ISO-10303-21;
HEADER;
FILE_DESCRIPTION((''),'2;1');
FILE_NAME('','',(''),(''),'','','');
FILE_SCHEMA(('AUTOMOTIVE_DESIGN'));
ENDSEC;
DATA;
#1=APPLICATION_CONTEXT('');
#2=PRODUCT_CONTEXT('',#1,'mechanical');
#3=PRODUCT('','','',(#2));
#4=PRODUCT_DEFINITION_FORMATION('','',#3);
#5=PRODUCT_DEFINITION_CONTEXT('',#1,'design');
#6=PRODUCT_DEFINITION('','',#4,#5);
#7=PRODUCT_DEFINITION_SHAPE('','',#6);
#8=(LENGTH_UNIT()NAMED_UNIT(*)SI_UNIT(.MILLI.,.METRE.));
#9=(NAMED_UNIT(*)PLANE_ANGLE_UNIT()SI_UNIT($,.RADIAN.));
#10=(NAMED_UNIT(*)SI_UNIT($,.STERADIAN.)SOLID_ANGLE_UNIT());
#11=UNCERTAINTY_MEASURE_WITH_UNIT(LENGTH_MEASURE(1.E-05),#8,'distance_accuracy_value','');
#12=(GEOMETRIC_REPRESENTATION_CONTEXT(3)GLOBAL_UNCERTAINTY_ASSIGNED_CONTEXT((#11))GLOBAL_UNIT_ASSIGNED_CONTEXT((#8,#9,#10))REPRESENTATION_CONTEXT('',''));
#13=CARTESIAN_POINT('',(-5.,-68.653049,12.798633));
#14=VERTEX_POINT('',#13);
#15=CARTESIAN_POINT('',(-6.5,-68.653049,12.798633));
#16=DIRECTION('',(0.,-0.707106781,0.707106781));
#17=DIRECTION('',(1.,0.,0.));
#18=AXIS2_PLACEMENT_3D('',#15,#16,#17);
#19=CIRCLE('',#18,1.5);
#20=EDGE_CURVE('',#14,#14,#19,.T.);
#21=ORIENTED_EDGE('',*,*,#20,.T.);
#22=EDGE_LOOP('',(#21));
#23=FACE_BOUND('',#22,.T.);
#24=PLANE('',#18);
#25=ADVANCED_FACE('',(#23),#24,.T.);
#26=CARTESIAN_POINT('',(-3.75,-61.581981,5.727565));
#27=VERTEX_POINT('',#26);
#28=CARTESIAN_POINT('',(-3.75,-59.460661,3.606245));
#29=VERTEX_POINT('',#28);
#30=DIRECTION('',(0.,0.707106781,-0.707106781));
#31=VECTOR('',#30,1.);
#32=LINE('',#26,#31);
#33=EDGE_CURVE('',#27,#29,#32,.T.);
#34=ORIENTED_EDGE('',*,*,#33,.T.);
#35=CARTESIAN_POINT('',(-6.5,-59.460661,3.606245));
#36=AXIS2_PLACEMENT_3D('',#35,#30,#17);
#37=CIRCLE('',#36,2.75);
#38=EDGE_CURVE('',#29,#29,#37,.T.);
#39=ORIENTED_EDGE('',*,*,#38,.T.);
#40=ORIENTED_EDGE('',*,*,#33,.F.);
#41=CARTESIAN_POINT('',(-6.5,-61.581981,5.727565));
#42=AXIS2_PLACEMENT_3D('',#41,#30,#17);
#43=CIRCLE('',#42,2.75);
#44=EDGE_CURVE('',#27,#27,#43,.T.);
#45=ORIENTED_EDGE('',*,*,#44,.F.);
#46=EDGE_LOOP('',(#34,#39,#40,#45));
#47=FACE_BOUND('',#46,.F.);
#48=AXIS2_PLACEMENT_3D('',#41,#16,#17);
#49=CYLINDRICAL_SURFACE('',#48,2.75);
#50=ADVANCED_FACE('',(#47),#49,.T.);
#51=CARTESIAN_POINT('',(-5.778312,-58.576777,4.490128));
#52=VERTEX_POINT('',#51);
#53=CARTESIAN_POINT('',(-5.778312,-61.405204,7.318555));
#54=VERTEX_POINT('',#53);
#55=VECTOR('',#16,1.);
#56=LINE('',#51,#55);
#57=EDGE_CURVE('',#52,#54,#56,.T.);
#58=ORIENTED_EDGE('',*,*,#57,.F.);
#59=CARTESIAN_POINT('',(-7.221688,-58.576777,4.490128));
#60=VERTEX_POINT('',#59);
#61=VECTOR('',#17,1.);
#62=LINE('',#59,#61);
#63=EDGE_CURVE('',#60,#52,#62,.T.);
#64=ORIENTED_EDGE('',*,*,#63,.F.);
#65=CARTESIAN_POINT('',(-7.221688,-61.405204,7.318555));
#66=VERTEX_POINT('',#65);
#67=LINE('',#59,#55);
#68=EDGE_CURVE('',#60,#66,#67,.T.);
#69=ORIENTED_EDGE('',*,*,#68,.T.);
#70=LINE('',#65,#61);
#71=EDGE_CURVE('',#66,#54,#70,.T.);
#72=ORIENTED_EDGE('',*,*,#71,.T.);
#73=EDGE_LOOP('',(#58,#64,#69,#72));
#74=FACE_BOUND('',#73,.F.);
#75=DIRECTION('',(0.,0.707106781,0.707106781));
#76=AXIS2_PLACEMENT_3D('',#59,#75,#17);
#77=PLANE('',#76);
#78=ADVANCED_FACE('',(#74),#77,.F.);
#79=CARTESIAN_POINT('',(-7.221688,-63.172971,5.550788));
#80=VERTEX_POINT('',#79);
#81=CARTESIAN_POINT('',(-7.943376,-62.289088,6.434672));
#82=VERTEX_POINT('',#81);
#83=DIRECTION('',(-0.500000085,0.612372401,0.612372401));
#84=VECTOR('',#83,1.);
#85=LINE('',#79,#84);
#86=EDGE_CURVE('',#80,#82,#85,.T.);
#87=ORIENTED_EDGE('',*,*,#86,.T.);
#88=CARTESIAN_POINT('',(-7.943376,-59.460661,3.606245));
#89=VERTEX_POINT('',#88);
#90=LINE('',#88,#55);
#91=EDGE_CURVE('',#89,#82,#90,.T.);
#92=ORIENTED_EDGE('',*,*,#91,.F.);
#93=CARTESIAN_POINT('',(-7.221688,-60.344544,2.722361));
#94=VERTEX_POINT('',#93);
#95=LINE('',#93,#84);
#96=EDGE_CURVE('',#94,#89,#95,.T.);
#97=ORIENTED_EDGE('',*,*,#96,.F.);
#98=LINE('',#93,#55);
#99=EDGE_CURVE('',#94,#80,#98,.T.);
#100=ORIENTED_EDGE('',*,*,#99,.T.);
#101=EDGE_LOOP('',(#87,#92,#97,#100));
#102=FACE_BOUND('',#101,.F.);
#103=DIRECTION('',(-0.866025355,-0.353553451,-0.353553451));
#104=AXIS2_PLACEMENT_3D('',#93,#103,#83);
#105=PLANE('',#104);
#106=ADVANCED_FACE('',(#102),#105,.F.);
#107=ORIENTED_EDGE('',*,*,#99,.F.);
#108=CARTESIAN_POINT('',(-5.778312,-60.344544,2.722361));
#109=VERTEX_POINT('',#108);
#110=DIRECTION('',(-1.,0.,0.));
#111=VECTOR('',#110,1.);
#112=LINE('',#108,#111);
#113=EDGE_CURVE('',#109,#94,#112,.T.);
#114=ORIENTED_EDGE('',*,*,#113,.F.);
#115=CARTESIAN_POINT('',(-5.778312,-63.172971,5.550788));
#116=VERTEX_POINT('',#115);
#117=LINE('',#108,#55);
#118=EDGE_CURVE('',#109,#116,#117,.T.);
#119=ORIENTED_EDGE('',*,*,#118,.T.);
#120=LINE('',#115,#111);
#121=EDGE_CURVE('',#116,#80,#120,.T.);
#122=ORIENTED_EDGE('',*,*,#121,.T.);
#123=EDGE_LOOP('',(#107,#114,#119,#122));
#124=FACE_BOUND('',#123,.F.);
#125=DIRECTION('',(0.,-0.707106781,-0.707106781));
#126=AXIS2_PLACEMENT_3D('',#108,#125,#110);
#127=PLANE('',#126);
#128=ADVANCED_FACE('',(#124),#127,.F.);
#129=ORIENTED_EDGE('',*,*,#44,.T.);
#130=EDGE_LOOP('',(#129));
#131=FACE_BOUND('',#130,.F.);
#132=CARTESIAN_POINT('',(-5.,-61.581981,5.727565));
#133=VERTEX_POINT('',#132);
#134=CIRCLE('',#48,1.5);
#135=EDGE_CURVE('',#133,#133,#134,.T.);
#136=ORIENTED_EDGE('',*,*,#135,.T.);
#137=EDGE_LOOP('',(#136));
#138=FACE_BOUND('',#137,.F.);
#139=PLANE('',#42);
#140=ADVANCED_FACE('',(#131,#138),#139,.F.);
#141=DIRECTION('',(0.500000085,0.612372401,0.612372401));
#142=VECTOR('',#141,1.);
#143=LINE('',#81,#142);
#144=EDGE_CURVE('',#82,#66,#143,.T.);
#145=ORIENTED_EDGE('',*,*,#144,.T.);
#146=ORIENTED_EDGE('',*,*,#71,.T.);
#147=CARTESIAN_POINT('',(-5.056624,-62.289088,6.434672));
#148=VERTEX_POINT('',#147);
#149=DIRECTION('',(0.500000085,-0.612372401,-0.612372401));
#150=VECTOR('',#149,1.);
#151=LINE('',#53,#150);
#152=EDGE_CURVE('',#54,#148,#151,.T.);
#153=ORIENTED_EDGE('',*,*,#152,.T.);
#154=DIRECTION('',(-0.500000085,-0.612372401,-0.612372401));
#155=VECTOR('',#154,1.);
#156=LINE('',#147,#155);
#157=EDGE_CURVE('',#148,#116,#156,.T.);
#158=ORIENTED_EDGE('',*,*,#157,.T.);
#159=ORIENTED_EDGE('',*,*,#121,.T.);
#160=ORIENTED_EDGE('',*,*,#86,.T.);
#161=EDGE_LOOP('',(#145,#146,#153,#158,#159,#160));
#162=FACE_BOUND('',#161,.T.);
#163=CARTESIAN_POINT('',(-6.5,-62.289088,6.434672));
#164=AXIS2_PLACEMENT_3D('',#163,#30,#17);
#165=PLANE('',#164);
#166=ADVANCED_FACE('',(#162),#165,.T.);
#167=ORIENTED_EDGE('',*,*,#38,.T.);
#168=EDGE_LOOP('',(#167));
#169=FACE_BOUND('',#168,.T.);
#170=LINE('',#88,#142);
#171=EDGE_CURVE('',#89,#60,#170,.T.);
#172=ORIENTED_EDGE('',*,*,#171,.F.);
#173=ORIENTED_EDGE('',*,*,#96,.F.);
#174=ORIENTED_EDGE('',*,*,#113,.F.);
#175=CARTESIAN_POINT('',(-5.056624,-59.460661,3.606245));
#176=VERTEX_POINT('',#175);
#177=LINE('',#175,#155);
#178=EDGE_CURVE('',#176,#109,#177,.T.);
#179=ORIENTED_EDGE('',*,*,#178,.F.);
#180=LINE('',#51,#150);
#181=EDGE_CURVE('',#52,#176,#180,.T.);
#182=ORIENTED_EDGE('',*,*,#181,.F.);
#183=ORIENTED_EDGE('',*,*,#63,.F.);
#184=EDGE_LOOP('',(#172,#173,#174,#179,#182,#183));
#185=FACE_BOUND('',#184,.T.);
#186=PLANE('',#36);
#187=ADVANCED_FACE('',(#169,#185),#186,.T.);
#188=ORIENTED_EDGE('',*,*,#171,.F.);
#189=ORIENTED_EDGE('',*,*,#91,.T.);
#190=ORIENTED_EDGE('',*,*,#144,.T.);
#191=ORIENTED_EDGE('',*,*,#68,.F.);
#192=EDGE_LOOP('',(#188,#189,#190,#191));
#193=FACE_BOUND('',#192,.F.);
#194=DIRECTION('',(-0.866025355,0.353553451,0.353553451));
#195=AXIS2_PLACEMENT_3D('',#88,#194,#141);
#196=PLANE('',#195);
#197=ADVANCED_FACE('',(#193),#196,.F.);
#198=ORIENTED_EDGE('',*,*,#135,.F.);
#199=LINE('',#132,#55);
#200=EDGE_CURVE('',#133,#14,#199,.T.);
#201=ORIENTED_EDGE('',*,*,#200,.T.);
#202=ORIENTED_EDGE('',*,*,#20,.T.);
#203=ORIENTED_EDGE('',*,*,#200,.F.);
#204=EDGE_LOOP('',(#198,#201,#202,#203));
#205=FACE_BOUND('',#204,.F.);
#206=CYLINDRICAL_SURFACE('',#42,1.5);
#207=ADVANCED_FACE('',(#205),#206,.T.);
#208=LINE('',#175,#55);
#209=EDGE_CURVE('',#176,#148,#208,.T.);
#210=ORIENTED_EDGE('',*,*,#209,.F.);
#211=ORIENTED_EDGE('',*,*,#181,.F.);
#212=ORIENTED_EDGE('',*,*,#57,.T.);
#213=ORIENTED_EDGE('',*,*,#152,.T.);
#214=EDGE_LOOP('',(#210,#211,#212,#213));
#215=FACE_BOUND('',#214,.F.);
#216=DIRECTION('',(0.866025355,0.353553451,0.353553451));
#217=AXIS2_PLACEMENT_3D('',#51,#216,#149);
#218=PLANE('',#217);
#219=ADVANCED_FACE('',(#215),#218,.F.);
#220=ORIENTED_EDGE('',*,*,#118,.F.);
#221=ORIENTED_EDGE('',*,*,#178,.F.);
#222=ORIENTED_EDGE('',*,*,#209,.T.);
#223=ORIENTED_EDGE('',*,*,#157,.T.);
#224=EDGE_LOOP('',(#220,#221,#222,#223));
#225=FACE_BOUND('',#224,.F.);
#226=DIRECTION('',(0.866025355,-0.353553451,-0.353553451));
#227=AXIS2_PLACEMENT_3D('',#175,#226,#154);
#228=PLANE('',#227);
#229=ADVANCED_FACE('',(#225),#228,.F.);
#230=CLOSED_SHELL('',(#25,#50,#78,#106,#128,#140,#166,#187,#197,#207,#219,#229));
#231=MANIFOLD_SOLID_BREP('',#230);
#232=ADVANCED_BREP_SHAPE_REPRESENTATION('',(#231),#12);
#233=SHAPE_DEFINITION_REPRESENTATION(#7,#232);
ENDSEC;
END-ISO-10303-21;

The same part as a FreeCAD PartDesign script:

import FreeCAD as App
import Part
import Sketcher
Q = App.Units.Quantity


def add_polygon(sketch, points):
    """Adds a closed chain of lines whose ends are joined by coincident constraints."""
    first, n = sketch.GeometryCount, len(points)
    for a, b in zip(points, points[1:] + points[:1]):
        sketch.addGeometry(Part.LineSegment(App.Vector(*a, 0), App.Vector(*b, 0)), False)
    for i in range(n):
        sketch.addConstraint(Sketcher.Constraint("Coincident", first + i, 2, first + (i + 1) % n, 1))

doc = App.newDocument("Part")
body = doc.addObject("PartDesign::Body", "Body")

# Sketch on XY plane
sketch1 = body.newObject("Sketcher::SketchObject", "Sketch")
sketch1.AttachmentSupport = (doc.getObject("XY_Plane"), [""])
sketch1.MapMode = "FlatFace"
sketch1.addGeometry(Part.Circle(App.Vector(0, 0, 0), App.Vector(0, 0, 1), 2.8), False)
sketch1.addConstraint([
    Sketcher.Constraint("Coincident", 0, 3, -1, 1),
    Sketcher.Constraint("Diameter", 0, 5.5),
])
pad1 = body.newObject("PartDesign::Pad", "Pad")
pad1.Profile = sketch1
pad1.Length = 3

# Sketch on XY plane
sketch2 = body.newObject("Sketcher::SketchObject", "Sketch001")
sketch2.AttachmentSupport = (doc.getObject("XY_Plane"), [""])
sketch2.MapMode = "FlatFace"
sketch2.addGeometry(Part.Circle(App.Vector(0, 0, 0), App.Vector(0, 0, 1), 1.5), False)
sketch2.addConstraint([
    Sketcher.Constraint("Coincident", 0, 3, -1, 1),
    Sketcher.Constraint("Diameter", 0, 3.0),
])
pad2 = body.newObject("PartDesign::Pad", "Pad001")
pad2.Profile = sketch2
pad2.Length = 10
pad2.Reversed = True

# Sketch on XY plane
sketch3 = body.newObject("Sketcher::SketchObject", "Sketch002")
sketch3.AttachmentSupport = (doc.getObject("XY_Plane"), [""])
sketch3.MapMode = "FlatFace"
sketch3.AttachmentOffset = App.Placement(App.Vector(0, 0, 3), App.Rotation())
add_polygon(sketch3, [(0.7, -1.2), (1.4, 0), (0.7, 1.2), (-0.7, 1.2), (-1.4, 0), (-0.7, -1.2)])  # lines 0-5
sketch3.addConstraint([
    Sketcher.Constraint("Horizontal", 2),
    Sketcher.Constraint("Horizontal", 5),
    Sketcher.Constraint("Symmetric", 0, 2, 3, 2, -1, 1),
    Sketcher.Constraint("Symmetric", 1, 2, 4, 2, -1, 1),
    Sketcher.Constraint("PointOnObject", 0, 2, -1),
    Sketcher.Constraint("Parallel", 0, 3),
    Sketcher.Constraint("Vertical", 2, 2, 4, 2),
    Sketcher.Constraint("Angle", 0, Q("59.999994 deg")),
    Sketcher.Constraint("DistanceY", 4, 2, 2, 2, 2.5),
    Sketcher.Constraint("DistanceX", 2, 2, 2, 1, 1.443376),
])
pocket1 = body.newObject("PartDesign::Pocket", "Pocket")
pocket1.Profile = sketch3
pocket1.Length = 4
body2 = doc.addObject("PartDesign::Body", "Body001")
doc.recompute()

body.Placement = App.Placement(App.Vector(-6.5, -61.581981, 5.727565), App.Rotation(App.Vector(1, 0, 0), 225))
boolean = body2.newObject("PartDesign::Boolean", "Boolean")
boolean.Type = "Fuse"
boolean.addObjects([body])

doc.recompute()
